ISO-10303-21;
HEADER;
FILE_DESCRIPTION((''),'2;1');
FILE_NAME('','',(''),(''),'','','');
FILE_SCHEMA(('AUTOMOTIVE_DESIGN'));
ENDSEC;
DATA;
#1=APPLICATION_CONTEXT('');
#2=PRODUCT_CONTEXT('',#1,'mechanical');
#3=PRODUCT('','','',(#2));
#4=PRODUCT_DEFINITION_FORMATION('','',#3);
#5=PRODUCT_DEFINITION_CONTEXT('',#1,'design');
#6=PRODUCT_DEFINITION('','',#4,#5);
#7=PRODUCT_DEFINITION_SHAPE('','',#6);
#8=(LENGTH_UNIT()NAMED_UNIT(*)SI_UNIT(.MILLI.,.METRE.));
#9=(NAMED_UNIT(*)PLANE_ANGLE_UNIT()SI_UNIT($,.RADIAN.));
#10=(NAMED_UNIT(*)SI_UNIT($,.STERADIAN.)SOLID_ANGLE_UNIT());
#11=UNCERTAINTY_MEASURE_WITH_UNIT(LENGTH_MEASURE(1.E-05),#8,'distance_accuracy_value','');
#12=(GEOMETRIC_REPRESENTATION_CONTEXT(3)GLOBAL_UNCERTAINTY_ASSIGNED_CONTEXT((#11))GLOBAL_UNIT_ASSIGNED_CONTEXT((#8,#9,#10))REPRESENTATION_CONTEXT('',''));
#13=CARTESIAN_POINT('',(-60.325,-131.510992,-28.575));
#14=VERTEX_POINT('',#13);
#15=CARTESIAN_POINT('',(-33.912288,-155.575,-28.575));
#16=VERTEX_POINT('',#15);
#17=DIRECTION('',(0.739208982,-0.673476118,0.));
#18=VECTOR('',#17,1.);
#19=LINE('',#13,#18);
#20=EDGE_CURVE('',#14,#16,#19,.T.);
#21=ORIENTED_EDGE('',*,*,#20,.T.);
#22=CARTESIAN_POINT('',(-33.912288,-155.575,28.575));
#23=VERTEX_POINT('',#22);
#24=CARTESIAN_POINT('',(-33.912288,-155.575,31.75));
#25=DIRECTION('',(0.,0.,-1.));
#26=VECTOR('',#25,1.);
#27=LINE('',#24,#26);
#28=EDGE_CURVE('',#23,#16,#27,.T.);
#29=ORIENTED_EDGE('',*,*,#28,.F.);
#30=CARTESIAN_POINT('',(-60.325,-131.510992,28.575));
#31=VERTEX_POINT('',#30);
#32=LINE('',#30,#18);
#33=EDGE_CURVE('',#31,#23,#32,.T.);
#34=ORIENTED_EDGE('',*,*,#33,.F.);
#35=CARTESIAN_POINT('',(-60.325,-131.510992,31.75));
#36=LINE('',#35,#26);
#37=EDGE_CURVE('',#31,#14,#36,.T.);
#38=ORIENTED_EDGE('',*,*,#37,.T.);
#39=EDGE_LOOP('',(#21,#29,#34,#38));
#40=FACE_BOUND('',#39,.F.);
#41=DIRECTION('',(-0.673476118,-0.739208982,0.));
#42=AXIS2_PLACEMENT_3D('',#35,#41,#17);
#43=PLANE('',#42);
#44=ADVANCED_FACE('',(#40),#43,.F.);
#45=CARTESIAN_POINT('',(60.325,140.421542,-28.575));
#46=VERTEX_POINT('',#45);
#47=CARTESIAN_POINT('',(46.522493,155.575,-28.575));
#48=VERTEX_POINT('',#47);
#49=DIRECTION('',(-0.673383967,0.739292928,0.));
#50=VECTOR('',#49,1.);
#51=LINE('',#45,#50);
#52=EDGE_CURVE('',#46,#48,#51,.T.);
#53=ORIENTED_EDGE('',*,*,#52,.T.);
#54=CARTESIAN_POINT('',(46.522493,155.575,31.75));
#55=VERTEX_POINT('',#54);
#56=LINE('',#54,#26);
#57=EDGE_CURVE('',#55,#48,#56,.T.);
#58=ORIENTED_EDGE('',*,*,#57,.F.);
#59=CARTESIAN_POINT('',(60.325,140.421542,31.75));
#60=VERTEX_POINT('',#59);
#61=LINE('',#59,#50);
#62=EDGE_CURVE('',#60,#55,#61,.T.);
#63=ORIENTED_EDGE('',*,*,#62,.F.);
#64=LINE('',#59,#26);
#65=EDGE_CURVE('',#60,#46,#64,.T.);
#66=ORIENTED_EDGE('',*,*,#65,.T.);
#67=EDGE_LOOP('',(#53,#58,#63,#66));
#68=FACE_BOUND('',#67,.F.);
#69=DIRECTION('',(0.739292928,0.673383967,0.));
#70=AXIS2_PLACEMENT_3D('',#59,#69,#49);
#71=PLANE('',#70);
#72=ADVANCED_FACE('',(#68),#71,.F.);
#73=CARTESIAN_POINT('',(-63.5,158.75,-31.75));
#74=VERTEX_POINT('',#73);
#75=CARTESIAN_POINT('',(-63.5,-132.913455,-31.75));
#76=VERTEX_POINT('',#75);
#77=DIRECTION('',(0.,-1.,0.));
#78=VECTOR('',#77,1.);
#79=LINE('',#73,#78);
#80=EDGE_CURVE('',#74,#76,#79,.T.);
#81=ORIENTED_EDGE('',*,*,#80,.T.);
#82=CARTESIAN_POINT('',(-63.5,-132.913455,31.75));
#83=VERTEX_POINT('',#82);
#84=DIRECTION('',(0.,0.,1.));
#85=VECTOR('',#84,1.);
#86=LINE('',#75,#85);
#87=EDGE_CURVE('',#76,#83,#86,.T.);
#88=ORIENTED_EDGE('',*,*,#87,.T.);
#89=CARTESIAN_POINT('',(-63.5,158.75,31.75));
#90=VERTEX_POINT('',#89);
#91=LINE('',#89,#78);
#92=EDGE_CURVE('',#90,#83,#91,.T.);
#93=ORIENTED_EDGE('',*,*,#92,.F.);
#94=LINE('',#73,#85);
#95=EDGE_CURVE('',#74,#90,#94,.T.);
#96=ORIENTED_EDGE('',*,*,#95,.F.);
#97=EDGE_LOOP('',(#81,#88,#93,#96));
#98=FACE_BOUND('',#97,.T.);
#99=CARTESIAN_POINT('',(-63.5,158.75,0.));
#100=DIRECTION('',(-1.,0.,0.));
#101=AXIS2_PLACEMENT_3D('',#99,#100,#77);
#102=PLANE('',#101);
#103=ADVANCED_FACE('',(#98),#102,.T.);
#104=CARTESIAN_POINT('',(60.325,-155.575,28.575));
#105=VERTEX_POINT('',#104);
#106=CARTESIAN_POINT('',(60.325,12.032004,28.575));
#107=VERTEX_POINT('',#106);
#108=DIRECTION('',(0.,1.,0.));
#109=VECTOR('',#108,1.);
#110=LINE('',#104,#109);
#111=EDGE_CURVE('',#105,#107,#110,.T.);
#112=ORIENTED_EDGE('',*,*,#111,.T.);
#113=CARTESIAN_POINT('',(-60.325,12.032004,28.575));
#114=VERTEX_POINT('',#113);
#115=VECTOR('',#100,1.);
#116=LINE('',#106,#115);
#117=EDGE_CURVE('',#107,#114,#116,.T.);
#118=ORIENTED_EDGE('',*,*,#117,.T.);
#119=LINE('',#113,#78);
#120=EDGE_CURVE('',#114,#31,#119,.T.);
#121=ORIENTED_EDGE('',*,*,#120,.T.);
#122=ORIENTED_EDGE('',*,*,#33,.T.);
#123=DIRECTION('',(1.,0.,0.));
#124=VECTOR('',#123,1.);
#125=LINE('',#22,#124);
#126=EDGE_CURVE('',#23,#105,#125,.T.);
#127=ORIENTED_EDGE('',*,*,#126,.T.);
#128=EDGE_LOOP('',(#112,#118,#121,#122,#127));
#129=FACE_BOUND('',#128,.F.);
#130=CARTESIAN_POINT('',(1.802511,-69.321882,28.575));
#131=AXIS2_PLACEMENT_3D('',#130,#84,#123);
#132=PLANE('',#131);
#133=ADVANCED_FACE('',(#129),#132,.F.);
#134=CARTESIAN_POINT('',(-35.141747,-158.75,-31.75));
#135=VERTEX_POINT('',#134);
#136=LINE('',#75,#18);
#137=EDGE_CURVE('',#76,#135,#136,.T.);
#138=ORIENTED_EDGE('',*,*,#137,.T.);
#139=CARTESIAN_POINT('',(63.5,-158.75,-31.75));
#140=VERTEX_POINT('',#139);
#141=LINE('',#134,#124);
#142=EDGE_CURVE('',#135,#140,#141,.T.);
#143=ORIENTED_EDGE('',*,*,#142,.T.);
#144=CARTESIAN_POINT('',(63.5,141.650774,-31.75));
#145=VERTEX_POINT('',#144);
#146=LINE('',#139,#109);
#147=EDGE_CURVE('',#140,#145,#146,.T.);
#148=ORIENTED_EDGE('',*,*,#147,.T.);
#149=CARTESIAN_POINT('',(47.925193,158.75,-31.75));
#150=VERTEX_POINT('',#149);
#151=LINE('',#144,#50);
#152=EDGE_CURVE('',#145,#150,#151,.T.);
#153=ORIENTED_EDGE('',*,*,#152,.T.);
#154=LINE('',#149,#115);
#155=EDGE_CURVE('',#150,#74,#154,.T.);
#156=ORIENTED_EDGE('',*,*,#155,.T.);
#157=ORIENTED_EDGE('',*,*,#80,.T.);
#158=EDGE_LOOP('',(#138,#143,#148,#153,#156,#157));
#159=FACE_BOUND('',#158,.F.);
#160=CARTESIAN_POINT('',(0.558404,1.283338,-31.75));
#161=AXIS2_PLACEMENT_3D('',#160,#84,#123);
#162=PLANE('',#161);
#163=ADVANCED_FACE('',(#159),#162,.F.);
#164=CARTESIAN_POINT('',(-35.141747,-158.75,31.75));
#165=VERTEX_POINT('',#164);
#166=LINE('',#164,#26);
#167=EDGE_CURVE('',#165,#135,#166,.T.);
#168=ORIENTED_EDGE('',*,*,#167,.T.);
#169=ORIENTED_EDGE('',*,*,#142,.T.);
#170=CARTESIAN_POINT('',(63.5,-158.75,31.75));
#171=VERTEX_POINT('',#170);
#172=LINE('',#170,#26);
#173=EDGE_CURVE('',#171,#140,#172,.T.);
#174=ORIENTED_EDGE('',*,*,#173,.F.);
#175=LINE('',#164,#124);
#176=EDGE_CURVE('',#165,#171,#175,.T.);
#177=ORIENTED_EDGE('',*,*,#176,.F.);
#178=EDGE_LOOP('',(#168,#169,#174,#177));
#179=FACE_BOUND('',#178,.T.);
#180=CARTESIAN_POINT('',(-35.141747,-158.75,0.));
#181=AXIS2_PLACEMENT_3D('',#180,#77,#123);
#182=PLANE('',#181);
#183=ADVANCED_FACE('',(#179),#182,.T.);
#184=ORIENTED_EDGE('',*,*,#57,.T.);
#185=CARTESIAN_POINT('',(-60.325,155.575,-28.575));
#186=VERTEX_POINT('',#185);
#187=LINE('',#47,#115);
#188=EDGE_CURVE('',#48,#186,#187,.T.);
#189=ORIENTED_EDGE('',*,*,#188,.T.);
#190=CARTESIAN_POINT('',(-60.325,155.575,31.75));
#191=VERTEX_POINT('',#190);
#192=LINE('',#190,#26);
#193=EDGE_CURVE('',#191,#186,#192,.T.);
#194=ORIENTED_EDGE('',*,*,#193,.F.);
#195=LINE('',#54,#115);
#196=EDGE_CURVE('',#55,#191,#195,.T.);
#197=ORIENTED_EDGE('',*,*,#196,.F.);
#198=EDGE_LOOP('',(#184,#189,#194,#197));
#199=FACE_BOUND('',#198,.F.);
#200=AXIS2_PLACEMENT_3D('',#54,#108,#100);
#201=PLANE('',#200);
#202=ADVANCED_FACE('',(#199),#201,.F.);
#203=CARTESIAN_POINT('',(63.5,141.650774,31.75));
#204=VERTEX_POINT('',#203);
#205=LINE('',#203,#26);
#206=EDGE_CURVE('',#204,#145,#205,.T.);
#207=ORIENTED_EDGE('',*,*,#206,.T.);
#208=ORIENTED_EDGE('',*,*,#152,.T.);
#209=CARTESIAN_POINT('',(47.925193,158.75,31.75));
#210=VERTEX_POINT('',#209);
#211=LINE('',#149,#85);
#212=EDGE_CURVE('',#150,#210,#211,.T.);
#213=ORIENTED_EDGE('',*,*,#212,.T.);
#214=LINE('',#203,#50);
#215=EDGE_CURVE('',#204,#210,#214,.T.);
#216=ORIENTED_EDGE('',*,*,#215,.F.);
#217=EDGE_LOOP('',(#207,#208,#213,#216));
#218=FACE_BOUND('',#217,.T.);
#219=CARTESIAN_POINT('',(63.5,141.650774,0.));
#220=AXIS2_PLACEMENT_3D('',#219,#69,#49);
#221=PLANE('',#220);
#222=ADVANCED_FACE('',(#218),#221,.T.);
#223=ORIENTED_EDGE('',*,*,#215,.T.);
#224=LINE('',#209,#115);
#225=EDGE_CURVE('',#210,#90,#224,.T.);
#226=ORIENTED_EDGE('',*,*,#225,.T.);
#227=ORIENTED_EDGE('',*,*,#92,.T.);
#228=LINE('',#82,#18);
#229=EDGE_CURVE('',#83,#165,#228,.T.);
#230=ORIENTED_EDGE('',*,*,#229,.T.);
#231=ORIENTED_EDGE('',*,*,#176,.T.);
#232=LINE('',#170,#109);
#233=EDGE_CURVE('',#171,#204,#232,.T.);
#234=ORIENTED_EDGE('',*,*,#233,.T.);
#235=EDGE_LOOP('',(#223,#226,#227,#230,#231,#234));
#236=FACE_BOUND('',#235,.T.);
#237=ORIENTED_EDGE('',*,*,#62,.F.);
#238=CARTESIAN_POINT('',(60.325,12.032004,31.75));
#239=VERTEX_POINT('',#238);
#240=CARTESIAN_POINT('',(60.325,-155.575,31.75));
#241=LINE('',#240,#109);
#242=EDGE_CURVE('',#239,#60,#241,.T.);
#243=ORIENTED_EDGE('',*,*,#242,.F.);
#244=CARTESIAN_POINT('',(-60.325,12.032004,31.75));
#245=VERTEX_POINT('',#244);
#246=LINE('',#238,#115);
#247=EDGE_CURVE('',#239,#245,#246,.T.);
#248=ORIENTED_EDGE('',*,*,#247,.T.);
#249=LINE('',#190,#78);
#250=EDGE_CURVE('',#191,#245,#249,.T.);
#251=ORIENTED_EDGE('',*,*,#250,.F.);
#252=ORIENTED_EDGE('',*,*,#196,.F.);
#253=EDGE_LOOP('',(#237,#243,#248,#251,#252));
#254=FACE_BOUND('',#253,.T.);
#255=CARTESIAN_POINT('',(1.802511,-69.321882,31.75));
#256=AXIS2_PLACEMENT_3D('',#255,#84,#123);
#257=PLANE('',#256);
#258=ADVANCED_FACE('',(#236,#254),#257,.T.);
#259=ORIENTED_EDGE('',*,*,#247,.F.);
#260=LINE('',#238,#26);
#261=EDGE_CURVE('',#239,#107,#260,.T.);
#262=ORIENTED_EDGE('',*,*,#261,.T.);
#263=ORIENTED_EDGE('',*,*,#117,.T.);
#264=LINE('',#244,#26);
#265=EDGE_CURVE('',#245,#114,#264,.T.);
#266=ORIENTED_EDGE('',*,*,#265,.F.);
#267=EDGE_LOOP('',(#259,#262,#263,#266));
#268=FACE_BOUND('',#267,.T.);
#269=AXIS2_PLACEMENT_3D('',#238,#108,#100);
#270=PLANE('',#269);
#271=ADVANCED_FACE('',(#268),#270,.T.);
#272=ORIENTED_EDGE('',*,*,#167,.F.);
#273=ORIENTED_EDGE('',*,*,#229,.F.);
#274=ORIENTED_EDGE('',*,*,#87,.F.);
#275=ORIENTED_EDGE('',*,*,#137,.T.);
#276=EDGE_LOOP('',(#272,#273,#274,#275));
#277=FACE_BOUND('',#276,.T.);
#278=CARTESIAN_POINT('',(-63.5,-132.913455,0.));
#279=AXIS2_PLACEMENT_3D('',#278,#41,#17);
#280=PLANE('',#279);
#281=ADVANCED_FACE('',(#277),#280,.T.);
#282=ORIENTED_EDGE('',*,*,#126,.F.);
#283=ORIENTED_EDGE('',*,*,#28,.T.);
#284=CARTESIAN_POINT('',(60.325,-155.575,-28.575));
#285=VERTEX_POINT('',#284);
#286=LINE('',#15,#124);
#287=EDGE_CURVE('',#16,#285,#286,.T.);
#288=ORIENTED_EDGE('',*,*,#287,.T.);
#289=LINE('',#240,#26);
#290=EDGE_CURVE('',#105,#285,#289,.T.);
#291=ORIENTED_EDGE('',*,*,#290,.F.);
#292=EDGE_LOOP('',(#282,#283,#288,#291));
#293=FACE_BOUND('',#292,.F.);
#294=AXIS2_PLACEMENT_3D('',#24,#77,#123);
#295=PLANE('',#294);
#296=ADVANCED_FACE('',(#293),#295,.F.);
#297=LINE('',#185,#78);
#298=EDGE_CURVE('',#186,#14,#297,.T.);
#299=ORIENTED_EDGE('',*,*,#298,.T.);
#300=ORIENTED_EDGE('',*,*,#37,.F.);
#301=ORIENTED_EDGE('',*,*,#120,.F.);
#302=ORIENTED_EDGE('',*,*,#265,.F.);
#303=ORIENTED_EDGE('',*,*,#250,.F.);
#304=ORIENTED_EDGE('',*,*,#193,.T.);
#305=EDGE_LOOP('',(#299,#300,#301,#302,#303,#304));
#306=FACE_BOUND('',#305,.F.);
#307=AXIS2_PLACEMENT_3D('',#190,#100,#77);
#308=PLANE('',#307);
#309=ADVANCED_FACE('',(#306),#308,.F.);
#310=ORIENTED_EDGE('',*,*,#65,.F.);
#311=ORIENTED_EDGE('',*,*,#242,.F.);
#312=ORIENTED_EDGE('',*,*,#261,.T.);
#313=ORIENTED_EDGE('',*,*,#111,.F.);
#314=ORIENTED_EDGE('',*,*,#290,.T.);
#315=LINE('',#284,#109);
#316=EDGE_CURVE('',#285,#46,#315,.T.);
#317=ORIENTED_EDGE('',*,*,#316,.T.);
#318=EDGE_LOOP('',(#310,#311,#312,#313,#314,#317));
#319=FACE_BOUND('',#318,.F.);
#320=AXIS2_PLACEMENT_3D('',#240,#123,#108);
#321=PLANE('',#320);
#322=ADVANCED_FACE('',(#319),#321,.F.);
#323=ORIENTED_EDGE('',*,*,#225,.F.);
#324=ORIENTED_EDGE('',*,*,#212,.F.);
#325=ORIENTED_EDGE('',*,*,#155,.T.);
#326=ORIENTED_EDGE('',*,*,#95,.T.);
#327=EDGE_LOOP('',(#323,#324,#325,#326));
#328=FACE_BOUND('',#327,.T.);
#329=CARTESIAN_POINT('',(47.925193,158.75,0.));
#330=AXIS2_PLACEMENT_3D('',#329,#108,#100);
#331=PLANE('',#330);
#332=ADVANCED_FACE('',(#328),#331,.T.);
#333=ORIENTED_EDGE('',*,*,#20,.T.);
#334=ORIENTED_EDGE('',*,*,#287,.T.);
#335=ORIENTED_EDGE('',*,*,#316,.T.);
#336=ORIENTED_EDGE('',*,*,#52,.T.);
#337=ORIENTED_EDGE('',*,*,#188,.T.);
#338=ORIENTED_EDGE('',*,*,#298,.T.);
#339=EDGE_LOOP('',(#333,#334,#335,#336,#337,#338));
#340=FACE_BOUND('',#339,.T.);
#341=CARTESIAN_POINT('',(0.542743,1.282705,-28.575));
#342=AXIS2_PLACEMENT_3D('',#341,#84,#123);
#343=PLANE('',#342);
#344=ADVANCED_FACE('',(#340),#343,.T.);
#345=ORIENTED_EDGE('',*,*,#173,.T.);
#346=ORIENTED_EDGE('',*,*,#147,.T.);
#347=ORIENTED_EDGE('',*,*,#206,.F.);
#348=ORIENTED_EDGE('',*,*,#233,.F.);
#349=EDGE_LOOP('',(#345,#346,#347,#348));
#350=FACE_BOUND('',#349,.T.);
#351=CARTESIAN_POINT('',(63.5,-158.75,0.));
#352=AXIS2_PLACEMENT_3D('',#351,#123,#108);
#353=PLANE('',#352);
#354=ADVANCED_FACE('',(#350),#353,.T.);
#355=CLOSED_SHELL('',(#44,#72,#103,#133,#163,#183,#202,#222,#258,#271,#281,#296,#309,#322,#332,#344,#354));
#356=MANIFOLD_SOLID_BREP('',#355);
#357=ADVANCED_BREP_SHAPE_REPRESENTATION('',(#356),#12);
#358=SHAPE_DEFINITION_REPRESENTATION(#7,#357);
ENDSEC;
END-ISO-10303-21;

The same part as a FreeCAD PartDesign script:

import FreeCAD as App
import Part
import Sketcher

V = App.Vector
Q = App.Units.Quantity

doc = App.newDocument("Part")
body = doc.addObject("PartDesign::Body", "Body")

# Sketch on XY plane
sketch1 = body.newObject("Sketcher::SketchObject", "Sketch")
sketch1.AttachmentSupport = (doc.getObject("XY_Plane"), [""])
sketch1.MapMode = "FlatFace"
sketch1.addGeometry([
    Part.LineSegment(V(64, 142, 0), V(48, 159, 0)),  # 0
    Part.LineSegment(V(48, 159, 0), V(-64, 159, 0)),  # 1
    Part.LineSegment(V(-64, 159, 0), V(-64, -133, 0)),  # 2
    Part.LineSegment(V(-64, -133, 0), V(-35, -159, 0)),  # 3
    Part.LineSegment(V(-35, -159, 0), V(64, -159, 0)),  # 4
    Part.LineSegment(V(64, -159, 0), V(64, 142, 0)),  # 5
], False)
sketch1.addConstraint([
    Sketcher.Constraint("Coincident", 0, 2, 1, 1),
    Sketcher.Constraint("Coincident", 1, 2, 2, 1),
    Sketcher.Constraint("Coincident", 2, 2, 3, 1),
    Sketcher.Constraint("Coincident", 3, 2, 4, 1),
    Sketcher.Constraint("Coincident", 4, 2, 5, 1),
    Sketcher.Constraint("Coincident", 5, 2, 0, 1),
    Sketcher.Constraint("Horizontal", 1),
    Sketcher.Constraint("Vertical", 2),
    Sketcher.Constraint("Horizontal", 4),
    Sketcher.Constraint("Vertical", 5),
    Sketcher.Constraint("Symmetric", 1, 2, 4, 2, -1, 1),
    Sketcher.Constraint("DistanceX", 2, 2, 4, 2, Q("5 in")),
    Sketcher.Constraint("DistanceY", 3, 2, 1, 2, Q("12.5 in")),
    Sketcher.Constraint("Distance", 3, 38.362971),
    Sketcher.Constraint("DistanceX", 1, 2, 1, 1, 111.425193),
    Sketcher.Constraint("DistanceX", 4, 1, 4, 2, 98.641747),
    Sketcher.Constraint("DistanceY", 5, 1, 5, 2, 300.400774),
])
pad1 = body.newObject("PartDesign::Pad", "Pad")
pad1.Profile = sketch1
pad1.Length = Q("2.5 in")
pad1.Midplane = True

# Sketch on XY plane
sketch2 = body.newObject("Sketcher::SketchObject", "Sketch001")
sketch2.AttachmentSupport = (doc.getObject("XY_Plane"), [""])
sketch2.MapMode = "FlatFace"
sketch2.AttachmentOffset = App.Placement(V(0, 0, 1.25 * 25.4), App.Rotation())
sketch2.addGeometry([
    Part.LineSegment(V(-60, -132, 0), V(-34, -156, 0)),  # 0
    Part.LineSegment(V(-34, -156, 0), V(60, -156, 0)),  # 1
    Part.LineSegment(V(60, -156, 0), V(60, 140, 0)),  # 2
    Part.LineSegment(V(60, 140, 0), V(47, 156, 0)),  # 3
    Part.LineSegment(V(47, 156, 0), V(-60, 156, 0)),  # 4
    Part.LineSegment(V(-60, 156, 0), V(-60, -132, 0)),  # 5
], False)
sketch2.addConstraint([
    Sketcher.Constraint("Coincident", 0, 2, 1, 1),
    Sketcher.Constraint("Coincident", 1, 2, 2, 1),
    Sketcher.Constraint("Coincident", 2, 2, 3, 1),
    Sketcher.Constraint("Coincident", 3, 2, 4, 1),
    Sketcher.Constraint("Coincident", 4, 2, 5, 1),
    Sketcher.Constraint("Coincident", 5, 2, 0, 1),
    Sketcher.Constraint("Horizontal", 1),
    Sketcher.Constraint("Vertical", 2),
    Sketcher.Constraint("Horizontal", 4),
    Sketcher.Constraint("Vertical", 5),
    Sketcher.Constraint("Symmetric", 1, 2, 4, 2, -1, 1),
    Sketcher.Constraint("DistanceY", 1, 2, 3, 2, Q("12.25 in")),
    Sketcher.Constraint("DistanceX", 4, 2, 2, 2, Q("4.75 in")),
    Sketcher.Constraint("DistanceX", 1, 1, 1, 2, 94.237288),
    Sketcher.Constraint("Distance", 0, 35.731048),
    Sketcher.Constraint("Distance", 3, 20.497231),
    Sketcher.Constraint("DistanceX", 4, 2, 4, 1, 106.847493),
])
pocket1 = body.newObject("PartDesign::Pocket", "Pocket")
pocket1.Profile = sketch2
pocket1.Length = Q("2.375 in")

# Sketch on XY plane
sketch3 = body.newObject("Sketcher::SketchObject", "Sketch002")
sketch3.AttachmentSupport = (doc.getObject("XY_Plane"), [""])
sketch3.MapMode = "FlatFace"
sketch3.AttachmentOffset = App.Placement(V(0, 0, 1.25 * 25.4), App.Rotation())
sketch3.addGeometry([
    Part.LineSegment(V(60, 12, 0), V(-60, 12, 0)),  # 0
    Part.LineSegment(V(-60, 12, 0), V(-60, -132, 0)),  # 1
    Part.LineSegment(V(-60, -132, 0), V(-34, -156, 0)),  # 2
    Part.LineSegment(V(-34, -156, 0), V(60, -156, 0)),  # 3
    Part.LineSegment(V(60, -156, 0), V(60, 12, 0)),  # 4
], False)
sketch3.addConstraint([
    Sketcher.Constraint("Coincident", 0, 2, 1, 1),
    Sketcher.Constraint("Coincident", 1, 2, 2, 1),
    Sketcher.Constraint("Coincident", 2, 2, 3, 1),
    Sketcher.Constraint("Coincident", 3, 2, 4, 1),
    Sketcher.Constraint("Coincident", 4, 2, 0, 1),
    Sketcher.Constraint("Horizontal", 0),
    Sketcher.Constraint("Vertical", 1),
    Sketcher.Constraint("Horizontal", 3),
    Sketcher.Constraint("Vertical", 4),
    Sketcher.Constraint("DistanceX", 0, 2, 0, 1, Q("4.75 in")),
    Sketcher.Constraint("DistanceX", 0, 2, -1, 1, Q("2.375 in")),
    Sketcher.Constraint("DistanceY", 2, 2, -1, 1, Q("6.125 in")),
    Sketcher.Constraint("DistanceX", 3, 1, 3, 2, 94.237288),
    Sketcher.Constraint("Distance", 2, 35.731048),
    Sketcher.Constraint("DistanceY", 1, 2, 1, 1, 143.542996),
])
pad2 = body.newObject("PartDesign::Pad", "Pad001")
pad2.Profile = sketch3
pad2.Length = Q("0.125 in")
pad2.Reversed = True

doc.recompute()
